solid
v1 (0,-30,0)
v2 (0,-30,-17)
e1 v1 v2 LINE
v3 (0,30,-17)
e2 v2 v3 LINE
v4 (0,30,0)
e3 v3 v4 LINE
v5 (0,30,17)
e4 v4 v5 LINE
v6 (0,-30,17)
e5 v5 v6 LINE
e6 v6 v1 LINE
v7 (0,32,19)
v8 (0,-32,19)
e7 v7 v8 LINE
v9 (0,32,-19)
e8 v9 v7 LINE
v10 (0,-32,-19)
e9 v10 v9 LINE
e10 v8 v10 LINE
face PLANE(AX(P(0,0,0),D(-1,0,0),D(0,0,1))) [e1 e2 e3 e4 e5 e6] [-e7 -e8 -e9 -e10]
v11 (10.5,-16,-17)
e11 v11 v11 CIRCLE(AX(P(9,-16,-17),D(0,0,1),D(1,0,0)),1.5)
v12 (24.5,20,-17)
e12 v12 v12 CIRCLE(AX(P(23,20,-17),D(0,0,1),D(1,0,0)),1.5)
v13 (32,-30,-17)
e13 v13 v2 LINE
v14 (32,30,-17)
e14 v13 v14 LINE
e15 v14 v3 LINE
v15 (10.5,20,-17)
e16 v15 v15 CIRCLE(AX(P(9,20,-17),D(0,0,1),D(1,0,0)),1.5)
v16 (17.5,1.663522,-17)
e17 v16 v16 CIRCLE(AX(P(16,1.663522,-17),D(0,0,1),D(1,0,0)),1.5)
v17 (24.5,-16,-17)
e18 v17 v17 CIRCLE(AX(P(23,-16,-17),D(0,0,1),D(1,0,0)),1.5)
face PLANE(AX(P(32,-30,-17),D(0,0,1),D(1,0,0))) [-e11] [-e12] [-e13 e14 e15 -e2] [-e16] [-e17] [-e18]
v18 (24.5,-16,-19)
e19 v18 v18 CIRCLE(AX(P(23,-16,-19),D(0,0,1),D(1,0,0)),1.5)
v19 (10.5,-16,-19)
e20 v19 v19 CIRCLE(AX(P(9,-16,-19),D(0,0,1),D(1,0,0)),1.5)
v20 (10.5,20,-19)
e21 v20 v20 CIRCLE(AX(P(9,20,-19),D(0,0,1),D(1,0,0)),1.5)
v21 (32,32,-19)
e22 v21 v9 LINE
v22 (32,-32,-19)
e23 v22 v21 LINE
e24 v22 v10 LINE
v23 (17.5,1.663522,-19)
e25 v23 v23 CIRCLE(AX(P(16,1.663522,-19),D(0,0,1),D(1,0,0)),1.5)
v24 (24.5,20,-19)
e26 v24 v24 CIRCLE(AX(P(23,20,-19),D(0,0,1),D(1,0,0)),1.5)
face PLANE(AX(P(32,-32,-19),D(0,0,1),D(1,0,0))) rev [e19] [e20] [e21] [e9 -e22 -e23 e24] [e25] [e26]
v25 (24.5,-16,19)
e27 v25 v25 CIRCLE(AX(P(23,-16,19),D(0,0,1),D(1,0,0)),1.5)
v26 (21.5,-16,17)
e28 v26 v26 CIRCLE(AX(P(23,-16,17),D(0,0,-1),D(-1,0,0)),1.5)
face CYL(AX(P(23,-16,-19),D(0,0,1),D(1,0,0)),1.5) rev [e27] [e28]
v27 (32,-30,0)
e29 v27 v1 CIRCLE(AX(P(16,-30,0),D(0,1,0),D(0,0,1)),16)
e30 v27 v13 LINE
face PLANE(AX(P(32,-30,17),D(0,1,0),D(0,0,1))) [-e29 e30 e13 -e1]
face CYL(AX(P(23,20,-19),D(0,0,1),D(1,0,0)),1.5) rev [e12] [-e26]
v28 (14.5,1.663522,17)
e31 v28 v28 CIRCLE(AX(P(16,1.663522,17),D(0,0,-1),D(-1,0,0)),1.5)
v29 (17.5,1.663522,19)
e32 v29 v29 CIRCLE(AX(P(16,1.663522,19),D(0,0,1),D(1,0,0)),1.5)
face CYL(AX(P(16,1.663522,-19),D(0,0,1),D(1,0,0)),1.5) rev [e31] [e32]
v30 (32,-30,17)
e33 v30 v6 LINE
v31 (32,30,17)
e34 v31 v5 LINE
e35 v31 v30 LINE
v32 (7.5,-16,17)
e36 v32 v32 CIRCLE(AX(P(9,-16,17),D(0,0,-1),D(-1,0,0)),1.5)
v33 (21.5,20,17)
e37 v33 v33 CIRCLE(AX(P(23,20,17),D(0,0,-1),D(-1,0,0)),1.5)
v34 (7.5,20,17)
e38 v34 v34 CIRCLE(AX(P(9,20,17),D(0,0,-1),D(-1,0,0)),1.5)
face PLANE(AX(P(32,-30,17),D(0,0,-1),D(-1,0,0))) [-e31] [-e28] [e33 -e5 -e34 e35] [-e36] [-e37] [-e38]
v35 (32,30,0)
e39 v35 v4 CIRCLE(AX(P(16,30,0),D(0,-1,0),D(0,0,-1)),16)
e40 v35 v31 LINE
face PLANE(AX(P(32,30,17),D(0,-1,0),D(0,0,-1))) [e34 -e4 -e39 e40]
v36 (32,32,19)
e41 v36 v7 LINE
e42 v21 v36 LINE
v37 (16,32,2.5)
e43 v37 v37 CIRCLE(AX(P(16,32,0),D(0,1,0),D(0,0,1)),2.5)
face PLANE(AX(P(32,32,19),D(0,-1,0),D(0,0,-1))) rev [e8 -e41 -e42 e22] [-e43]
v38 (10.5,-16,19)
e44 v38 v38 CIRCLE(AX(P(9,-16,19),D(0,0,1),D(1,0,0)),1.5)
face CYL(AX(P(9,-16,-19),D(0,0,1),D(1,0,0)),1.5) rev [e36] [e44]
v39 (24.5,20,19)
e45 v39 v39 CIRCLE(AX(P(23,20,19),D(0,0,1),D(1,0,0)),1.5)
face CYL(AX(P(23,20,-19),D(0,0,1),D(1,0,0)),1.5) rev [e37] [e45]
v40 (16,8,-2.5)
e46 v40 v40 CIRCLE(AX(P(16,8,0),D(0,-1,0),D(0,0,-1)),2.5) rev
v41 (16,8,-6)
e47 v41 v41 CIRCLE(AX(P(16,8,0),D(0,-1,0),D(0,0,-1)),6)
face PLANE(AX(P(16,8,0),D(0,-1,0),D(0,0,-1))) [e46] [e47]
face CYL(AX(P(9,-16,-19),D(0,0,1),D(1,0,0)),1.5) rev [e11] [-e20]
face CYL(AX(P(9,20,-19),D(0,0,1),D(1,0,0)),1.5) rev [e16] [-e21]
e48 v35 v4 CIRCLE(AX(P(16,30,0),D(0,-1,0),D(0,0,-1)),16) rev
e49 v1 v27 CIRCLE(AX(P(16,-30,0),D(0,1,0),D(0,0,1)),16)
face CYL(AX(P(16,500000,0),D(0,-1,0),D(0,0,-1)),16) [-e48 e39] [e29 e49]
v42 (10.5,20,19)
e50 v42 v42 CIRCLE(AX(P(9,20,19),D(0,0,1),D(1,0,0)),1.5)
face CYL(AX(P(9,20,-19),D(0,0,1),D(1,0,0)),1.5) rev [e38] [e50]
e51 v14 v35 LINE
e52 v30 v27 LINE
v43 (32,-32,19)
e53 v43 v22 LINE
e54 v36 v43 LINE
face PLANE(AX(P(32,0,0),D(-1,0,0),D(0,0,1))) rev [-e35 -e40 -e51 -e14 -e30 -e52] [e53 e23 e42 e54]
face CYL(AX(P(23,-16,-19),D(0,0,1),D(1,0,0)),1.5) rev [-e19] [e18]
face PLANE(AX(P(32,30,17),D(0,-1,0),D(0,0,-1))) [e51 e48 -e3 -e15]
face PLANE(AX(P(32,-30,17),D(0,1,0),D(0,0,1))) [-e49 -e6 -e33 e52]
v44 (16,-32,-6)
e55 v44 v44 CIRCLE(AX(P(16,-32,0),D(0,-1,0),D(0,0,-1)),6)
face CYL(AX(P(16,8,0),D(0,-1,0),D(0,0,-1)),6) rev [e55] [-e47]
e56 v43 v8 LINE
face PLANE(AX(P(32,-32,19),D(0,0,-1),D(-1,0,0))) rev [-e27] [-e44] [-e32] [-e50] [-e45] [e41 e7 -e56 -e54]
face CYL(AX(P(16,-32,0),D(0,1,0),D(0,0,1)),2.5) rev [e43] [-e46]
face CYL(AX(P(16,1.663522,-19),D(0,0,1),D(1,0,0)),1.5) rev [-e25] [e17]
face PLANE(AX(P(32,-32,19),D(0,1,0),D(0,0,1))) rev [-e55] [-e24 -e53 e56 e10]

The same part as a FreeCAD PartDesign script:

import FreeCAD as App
import Part
import Sketcher

doc = App.newDocument("Part")
params = doc.addObject("Spreadsheet::Sheet", "Params")
for row, (alias, value) in enumerate([
    ("sketch1_width", "64 mm"),
    ("sketch1_width2", "60 mm"),
    ("sketch1_height", "38 mm"),
    ("sketch1_height2", "34 mm"),
    ("pad1_length", "32 mm"),
    ("sketch2_diameter", "3 mm"),
    ("sketch3_diameter", "32 mm"),
    ("sketch4_diameter", "5 mm"),
    ("sketch5_diameter", "12 mm"),
    ("pocket3_length", "40 mm"),
], start=1):
    params.set(f"A{row}", alias)
    params.set(f"B{row}", "=" + value)
    params.setAlias(f"B{row}", alias)

body = doc.addObject("PartDesign::Body", "Body")

sketch1 = body.newObject("Sketcher::SketchObject", "Sketch")
sketch1.AttachmentSupport = (doc.getObject("YZ_Plane"), [""])
sketch1.MapMode = "FlatFace"
sketch1.addGeometry(Part.LineSegment(App.Vector(32, 19, 0), App.Vector(-32, 19, 0)), False)
sketch1.addGeometry(Part.LineSegment(App.Vector(-32, 19, 0), App.Vector(-32, -19, 0)), False)
sketch1.addGeometry(Part.LineSegment(App.Vector(-32, -19, 0), App.Vector(32, -19, 0)), False)
sketch1.addGeometry(Part.LineSegment(App.Vector(32, -19, 0), App.Vector(32, 19, 0)), False)
sketch1.addGeometry(Part.LineSegment(App.Vector(-30, -17, 0), App.Vector(-30, 17, 0)), False)
sketch1.addGeometry(Part.LineSegment(App.Vector(-30, 17, 0), App.Vector(30, 17, 0)), False)
sketch1.addGeometry(Part.LineSegment(App.Vector(30, 17, 0), App.Vector(30, -17, 0)), False)
sketch1.addGeometry(Part.LineSegment(App.Vector(30, -17, 0), App.Vector(-30, -17, 0)), False)
sketch1.addConstraint(Sketcher.Constraint("Coincident", 0, 2, 1, 1))
sketch1.addConstraint(Sketcher.Constraint("Coincident", 1, 2, 2, 1))
sketch1.addConstraint(Sketcher.Constraint("Coincident", 2, 2, 3, 1))
sketch1.addConstraint(Sketcher.Constraint("Coincident", 3, 2, 0, 1))
sketch1.addConstraint(Sketcher.Constraint("Coincident", 4, 2, 5, 1))
sketch1.addConstraint(Sketcher.Constraint("Coincident", 5, 2, 6, 1))
sketch1.addConstraint(Sketcher.Constraint("Coincident", 6, 2, 7, 1))
sketch1.addConstraint(Sketcher.Constraint("Coincident", 7, 2, 4, 1))
sketch1.addConstraint(Sketcher.Constraint("Horizontal", 0))
sketch1.addConstraint(Sketcher.Constraint("Vertical", 1))
sketch1.addConstraint(Sketcher.Constraint("Horizontal", 2))
sketch1.addConstraint(Sketcher.Constraint("Vertical", 3))
sketch1.addConstraint(Sketcher.Constraint("Vertical", 4))
sketch1.addConstraint(Sketcher.Constraint("Horizontal", 5))
sketch1.addConstraint(Sketcher.Constraint("Vertical", 6))
sketch1.addConstraint(Sketcher.Constraint("Horizontal", 7))
sketch1.addConstraint(Sketcher.Constraint("Symmetric", 0, 2, 2, 2, -1, 1))
sketch1.addConstraint(Sketcher.Constraint("Symmetric", 4, 2, 6, 2, -1, 1))
sketch1.addConstraint(Sketcher.Constraint("DistanceX", 0, 2, 0, 1, 64.0))
sketch1.addConstraint(Sketcher.Constraint("DistanceX", 5, 1, 5, 2, 60.0))
sketch1.addConstraint(Sketcher.Constraint("DistanceY", 1, 2, 1, 1, 38.0))
sketch1.addConstraint(Sketcher.Constraint("DistanceY", 4, 1, 4, 2, 34.0))
sketch1.setExpression("Constraints[18]", "Params.sketch1_width")
sketch1.setExpression("Constraints[19]", "Params.sketch1_width2")
sketch1.setExpression("Constraints[20]", "Params.sketch1_height")
sketch1.setExpression("Constraints[21]", "Params.sketch1_height2")
pad1 = body.newObject("PartDesign::Pad", "Pad")
pad1.Profile = sketch1
pad1.setExpression("Length", "Params.pad1_length")

sketch2 = body.newObject("Sketcher::SketchObject", "Sketch001")
sketch2.AttachmentSupport = (doc.getObject("XY_Plane"), [""])
sketch2.MapMode = "FlatFace"
sketch2.AttachmentOffset = App.Placement(App.Vector(0, 0, 19), App.Rotation())
sketch2.addGeometry(Part.Circle(App.Vector(9, 20, 0), App.Vector(0, 0, 1), 1.5), False)
sketch2.addGeometry(Part.Circle(App.Vector(23, 20, 0), App.Vector(0, 0, 1), 1.5), False)
sketch2.addGeometry(Part.Circle(App.Vector(16, 1.7, 0), App.Vector(0, 0, 1), 1.5), False)
sketch2.addGeometry(Part.Circle(App.Vector(9, -16, 0), App.Vector(0, 0, 1), 1.5), False)
sketch2.addGeometry(Part.Circle(App.Vector(23, -16, 0), App.Vector(0, 0, 1), 1.5), False)
sketch2.addConstraint(Sketcher.Constraint("Equal", 0, 1))
sketch2.addConstraint(Sketcher.Constraint("Equal", 1, 2))
sketch2.addConstraint(Sketcher.Constraint("Equal", 2, 3))
sketch2.addConstraint(Sketcher.Constraint("Equal", 3, 4))
sketch2.addConstraint(Sketcher.Constraint("Horizontal", 0, 3, 1, 3))
sketch2.addConstraint(Sketcher.Constraint("Horizontal", 3, 3, 4, 3))
sketch2.addConstraint(Sketcher.Constraint("Vertical", 0, 3, 3, 3))
sketch2.addConstraint(Sketcher.Constraint("Vertical", 1, 3, 4, 3))
sketch2.addConstraint(Sketcher.Constraint("Diameter", 0, 3.0))
sketch2.addConstraint(Sketcher.Constraint("DistanceX", -1, 1, 0, 3, 9.0))
sketch2.addConstraint(Sketcher.Constraint("DistanceY", -1, 1, 0, 3, 20.0))
sketch2.addConstraint(Sketcher.Constraint("DistanceX", -1, 1, 1, 3, 23.0))
sketch2.addConstraint(Sketcher.Constraint("DistanceX", -1, 1, 2, 3, 16.0))
sketch2.addConstraint(Sketcher.Constraint("DistanceY", 3, 3, -1, 1, 16.0))
sketch2.addConstraint(Sketcher.Constraint("DistanceY", -1, 1, 2, 3, 1.663522))
sketch2.setExpression("Constraints[8]", "Params.sketch2_diameter")
pocket1 = body.newObject("PartDesign::Pocket", "Pocket")
pocket1.Profile = sketch2
pocket1.Type = "ThroughAll"

sketch3 = body.newObject("Sketcher::SketchObject", "Sketch002")
sketch3.AttachmentSupport = (doc.getObject("XZ_Plane"), [""])
sketch3.MapMode = "FlatFace"
sketch3.AttachmentOffset = App.Placement(App.Vector(0, 0, 30), App.Rotation())
sketch3.addGeometry(Part.Circle(App.Vector(16, 0, 0), App.Vector(0, 0, 1), 16), False)
sketch3.addConstraint(Sketcher.Constraint("PointOnObject", 0, 3, -1))
sketch3.addConstraint(Sketcher.Constraint("Diameter", 0, 32.0))
sketch3.addConstraint(Sketcher.Constraint("DistanceX", -1, 1, 0, 3, 16.0))
sketch3.setExpression("Constraints[1]", "Params.sketch3_diameter")
pad2 = body.newObject("PartDesign::Pad", "Pad001")
pad2.Profile = sketch3
pad2.Type = "UpToFirst"
pad2.Reversed = True

sketch4 = body.newObject("Sketcher::SketchObject", "Sketch003")
sketch4.AttachmentSupport = (doc.getObject("XZ_Plane"), [""])
sketch4.MapMode = "FlatFace"
sketch4.AttachmentOffset = App.Placement(App.Vector(0, 0, -32), App.Rotation())
sketch4.addGeometry(Part.Circle(App.Vector(16, 0, 0), App.Vector(0, 0, 1), 2.5), False)
sketch4.addConstraint(Sketcher.Constraint("PointOnObject", 0, 3, -1))
sketch4.addConstraint(Sketcher.Constraint("Diameter", 0, 5.0))
sketch4.addConstraint(Sketcher.Constraint("DistanceX", -1, 1, 0, 3, 16.0))
sketch4.setExpression("Constraints[1]", "Params.sketch4_diameter")
pocket2 = body.newObject("PartDesign::Pocket", "Pocket001")
pocket2.Profile = sketch4
pocket2.Type = "ThroughAll"
pocket2.Reversed = True

sketch5 = body.newObject("Sketcher::SketchObject", "Sketch004")
sketch5.AttachmentSupport = (doc.getObject("XZ_Plane"), [""])
sketch5.MapMode = "FlatFace"
sketch5.AttachmentOffset = App.Placement(App.Vector(0, 0, 32), App.Rotation())
sketch5.addGeometry(Part.Circle(App.Vector(16, 0, 0), App.Vector(0, 0, 1), 6), False)
sketch5.addConstraint(Sketcher.Constraint("PointOnObject", 0, 3, -1))
sketch5.addConstraint(Sketcher.Constraint("Diameter", 0, 12.0))
sketch5.addConstraint(Sketcher.Constraint("DistanceX", -1, 1, 0, 3, 16.0))
sketch5.setExpression("Constraints[1]", "Params.sketch5_diameter")
pocket3 = body.newObject("PartDesign::Pocket", "Pocket002")
pocket3.Profile = sketch5
pocket3.setExpression("Length", "Params.pocket3_length")

doc.recompute()
